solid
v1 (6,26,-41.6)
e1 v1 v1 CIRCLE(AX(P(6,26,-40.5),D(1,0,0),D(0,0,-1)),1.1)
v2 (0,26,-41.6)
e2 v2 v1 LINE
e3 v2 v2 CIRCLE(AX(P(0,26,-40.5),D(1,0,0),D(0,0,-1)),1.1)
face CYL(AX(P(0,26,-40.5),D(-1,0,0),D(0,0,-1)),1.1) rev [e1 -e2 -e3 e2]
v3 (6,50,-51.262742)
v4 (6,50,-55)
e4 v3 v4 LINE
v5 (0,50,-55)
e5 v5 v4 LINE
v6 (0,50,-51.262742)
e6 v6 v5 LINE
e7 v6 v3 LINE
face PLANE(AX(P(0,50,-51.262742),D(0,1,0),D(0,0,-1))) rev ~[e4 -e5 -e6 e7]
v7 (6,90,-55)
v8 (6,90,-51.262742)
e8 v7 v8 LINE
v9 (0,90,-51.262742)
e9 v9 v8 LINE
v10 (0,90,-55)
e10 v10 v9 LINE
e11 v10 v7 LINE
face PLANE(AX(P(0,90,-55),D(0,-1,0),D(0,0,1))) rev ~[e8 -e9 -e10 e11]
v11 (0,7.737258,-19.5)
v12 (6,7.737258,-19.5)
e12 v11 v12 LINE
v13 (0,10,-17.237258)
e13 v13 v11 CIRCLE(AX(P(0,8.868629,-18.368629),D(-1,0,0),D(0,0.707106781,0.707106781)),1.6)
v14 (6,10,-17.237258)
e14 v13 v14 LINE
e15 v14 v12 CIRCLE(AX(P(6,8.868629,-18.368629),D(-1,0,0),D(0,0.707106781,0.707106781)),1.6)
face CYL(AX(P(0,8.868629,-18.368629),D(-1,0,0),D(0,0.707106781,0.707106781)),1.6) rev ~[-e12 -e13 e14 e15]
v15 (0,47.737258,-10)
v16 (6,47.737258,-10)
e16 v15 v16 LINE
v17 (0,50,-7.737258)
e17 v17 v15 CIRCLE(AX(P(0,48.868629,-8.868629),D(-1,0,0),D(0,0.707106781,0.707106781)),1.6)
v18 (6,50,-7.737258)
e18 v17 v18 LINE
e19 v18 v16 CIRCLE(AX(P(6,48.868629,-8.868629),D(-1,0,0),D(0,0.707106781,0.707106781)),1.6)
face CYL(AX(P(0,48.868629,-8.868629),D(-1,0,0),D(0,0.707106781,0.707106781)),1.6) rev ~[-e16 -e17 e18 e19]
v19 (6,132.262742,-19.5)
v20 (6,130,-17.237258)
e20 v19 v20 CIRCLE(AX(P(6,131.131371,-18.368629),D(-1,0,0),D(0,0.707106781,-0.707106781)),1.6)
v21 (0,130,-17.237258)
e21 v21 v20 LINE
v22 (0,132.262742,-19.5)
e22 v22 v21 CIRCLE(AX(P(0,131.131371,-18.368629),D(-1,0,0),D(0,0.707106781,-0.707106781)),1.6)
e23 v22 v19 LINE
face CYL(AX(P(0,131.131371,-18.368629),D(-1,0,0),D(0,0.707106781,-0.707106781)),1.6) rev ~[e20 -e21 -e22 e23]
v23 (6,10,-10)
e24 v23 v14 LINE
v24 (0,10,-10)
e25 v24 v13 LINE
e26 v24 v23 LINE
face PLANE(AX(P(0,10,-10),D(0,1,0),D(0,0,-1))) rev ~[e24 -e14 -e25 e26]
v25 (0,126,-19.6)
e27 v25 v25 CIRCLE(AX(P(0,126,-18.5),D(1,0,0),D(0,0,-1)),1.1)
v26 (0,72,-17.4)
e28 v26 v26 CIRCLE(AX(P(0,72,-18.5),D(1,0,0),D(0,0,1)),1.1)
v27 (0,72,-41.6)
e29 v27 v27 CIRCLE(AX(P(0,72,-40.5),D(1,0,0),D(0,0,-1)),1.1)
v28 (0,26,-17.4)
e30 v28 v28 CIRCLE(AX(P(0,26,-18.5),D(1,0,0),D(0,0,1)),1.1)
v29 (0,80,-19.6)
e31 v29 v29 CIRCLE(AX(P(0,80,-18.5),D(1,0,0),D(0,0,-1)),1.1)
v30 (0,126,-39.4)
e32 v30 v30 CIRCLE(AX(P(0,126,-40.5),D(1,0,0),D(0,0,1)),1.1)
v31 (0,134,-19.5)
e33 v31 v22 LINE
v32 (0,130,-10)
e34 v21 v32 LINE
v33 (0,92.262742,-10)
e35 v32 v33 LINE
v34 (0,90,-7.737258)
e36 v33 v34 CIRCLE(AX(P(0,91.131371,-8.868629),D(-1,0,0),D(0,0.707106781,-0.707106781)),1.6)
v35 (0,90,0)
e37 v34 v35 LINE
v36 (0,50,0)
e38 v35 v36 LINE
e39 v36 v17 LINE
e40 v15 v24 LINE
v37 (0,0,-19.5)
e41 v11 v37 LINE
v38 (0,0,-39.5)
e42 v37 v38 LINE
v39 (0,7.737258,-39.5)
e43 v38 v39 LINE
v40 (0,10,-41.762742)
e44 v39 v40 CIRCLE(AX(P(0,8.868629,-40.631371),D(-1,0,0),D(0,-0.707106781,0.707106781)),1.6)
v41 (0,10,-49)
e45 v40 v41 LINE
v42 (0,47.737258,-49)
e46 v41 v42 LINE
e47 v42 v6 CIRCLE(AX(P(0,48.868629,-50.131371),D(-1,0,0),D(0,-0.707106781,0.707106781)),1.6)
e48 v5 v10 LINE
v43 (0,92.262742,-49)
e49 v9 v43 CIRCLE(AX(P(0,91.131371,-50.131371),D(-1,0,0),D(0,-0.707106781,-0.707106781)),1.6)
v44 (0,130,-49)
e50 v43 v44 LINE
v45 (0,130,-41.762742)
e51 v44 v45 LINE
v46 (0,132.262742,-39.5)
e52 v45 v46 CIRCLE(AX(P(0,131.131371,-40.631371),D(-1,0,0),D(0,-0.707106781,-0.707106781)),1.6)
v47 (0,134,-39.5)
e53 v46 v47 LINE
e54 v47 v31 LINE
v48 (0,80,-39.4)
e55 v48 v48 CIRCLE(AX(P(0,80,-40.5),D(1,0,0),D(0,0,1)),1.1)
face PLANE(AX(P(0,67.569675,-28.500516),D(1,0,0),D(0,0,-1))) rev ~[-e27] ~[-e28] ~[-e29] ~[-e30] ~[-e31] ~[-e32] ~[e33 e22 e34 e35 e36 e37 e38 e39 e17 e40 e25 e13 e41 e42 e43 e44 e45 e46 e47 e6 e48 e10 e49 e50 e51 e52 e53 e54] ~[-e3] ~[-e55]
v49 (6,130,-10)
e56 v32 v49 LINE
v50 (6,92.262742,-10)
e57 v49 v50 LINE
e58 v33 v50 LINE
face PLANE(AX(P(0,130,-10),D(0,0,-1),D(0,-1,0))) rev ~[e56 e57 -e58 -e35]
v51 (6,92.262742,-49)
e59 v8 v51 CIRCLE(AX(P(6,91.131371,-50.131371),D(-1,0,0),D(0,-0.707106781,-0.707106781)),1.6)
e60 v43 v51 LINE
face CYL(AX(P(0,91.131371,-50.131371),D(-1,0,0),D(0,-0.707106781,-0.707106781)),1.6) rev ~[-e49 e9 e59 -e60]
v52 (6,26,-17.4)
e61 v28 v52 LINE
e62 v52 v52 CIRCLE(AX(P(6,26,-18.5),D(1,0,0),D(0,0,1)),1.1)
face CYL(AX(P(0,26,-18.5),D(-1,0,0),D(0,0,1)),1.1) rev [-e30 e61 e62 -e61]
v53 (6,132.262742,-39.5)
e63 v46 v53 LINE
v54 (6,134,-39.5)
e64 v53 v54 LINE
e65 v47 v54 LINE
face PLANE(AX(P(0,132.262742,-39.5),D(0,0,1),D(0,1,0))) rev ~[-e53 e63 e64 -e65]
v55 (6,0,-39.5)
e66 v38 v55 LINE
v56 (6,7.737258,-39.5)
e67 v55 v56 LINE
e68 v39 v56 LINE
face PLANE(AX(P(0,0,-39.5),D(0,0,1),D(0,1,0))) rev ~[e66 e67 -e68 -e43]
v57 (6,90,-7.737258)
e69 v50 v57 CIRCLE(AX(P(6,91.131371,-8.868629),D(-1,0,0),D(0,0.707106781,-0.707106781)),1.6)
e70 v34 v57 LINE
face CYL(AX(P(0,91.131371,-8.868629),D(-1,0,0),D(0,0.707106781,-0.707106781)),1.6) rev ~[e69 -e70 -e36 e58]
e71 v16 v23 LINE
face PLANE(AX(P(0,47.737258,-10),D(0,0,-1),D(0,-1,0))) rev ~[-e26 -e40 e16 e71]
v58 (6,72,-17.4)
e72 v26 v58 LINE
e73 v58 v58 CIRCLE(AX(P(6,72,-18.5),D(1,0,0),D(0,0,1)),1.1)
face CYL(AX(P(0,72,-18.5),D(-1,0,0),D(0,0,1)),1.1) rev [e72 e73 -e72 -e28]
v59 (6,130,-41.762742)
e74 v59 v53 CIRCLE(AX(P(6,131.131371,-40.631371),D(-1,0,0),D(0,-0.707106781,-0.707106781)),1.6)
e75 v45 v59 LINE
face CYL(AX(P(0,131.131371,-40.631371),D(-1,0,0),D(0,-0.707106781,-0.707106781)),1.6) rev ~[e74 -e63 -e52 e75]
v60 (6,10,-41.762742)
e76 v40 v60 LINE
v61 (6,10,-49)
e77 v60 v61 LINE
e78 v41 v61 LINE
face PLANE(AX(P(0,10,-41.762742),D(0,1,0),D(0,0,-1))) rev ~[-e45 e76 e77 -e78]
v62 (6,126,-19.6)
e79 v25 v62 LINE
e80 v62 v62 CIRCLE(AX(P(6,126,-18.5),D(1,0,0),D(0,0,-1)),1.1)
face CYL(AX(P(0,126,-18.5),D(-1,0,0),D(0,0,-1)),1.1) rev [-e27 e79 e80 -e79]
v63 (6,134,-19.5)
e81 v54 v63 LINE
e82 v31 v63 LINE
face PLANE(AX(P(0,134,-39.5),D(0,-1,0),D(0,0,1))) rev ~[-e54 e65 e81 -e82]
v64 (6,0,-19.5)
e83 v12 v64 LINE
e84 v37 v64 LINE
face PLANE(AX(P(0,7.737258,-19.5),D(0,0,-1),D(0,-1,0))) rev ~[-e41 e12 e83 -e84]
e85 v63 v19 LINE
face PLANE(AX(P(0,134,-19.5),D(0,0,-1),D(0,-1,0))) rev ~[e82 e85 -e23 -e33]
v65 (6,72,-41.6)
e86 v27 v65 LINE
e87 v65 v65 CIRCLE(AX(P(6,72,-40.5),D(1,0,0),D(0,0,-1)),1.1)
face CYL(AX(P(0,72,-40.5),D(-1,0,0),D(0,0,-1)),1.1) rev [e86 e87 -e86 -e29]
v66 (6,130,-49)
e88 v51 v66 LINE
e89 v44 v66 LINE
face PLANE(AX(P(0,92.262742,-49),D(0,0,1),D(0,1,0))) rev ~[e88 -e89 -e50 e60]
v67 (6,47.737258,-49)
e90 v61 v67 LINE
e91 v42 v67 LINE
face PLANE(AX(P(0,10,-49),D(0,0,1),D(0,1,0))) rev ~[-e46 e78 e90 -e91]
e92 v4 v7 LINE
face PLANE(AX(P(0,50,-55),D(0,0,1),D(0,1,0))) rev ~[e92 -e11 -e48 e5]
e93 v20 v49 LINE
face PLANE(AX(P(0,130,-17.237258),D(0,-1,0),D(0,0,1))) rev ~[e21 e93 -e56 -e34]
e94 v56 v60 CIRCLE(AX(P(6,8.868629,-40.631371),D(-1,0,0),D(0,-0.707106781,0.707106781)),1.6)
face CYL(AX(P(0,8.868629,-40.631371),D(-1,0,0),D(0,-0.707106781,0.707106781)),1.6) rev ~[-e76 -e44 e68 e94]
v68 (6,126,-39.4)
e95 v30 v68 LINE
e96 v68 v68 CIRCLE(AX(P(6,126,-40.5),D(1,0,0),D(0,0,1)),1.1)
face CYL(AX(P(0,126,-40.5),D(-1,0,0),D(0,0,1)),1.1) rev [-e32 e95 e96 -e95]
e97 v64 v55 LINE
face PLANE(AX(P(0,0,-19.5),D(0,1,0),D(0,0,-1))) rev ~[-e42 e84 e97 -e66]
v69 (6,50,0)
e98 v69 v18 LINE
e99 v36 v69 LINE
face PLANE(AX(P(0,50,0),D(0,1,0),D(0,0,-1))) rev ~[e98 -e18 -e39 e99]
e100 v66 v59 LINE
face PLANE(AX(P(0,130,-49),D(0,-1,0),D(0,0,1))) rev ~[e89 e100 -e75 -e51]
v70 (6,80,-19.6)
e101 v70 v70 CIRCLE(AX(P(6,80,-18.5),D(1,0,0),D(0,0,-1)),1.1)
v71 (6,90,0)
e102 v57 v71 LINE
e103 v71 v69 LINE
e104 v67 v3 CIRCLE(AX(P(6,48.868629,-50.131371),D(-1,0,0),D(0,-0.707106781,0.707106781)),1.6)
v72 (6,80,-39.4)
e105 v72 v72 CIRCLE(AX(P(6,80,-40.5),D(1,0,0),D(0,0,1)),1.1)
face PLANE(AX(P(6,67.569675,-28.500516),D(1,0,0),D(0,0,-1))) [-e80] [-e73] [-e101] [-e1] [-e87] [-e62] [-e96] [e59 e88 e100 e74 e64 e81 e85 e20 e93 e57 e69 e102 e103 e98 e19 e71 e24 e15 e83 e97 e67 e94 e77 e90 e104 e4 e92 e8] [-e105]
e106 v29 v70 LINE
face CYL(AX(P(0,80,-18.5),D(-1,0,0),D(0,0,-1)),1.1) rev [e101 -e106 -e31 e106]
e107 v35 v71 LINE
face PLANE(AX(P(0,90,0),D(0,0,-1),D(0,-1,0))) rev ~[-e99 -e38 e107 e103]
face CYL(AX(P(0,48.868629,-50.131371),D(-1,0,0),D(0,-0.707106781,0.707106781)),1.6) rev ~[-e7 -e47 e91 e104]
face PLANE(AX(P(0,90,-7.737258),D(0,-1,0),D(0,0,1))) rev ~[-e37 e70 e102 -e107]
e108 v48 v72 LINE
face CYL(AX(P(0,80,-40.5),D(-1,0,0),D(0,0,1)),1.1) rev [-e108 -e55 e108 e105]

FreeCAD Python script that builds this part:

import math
import FreeCAD as App
import Part
import Sketcher
from FreeCAD import Vector

doc = App.newDocument("Part")
body = doc.addObject("PartDesign::Body", "Body")

# Sketch on YZ plane
sketch1 = body.newObject("Sketcher::SketchObject", "Sketch")
sketch1.AttachmentSupport = (doc.getObject("YZ_Plane"), [""])
sketch1.MapMode = "FlatFace"
sketch1.addGeometry(Part.LineSegment(Vector(7.737258, -19.5, 0), Vector(0, -19.5, 0)), False)
sketch1.addGeometry(Part.LineSegment(Vector(0, -19.5, 0), Vector(0, -39.5, 0)), False)
sketch1.addGeometry(Part.LineSegment(Vector(0, -39.5, 0), Vector(7.737258, -39.5, 0)), False)
sketch1.addGeometry(Part.ArcOfCircle(Part.Circle(Vector(8.868629, -40.631371, 0), Vector(0, 0, 1), 1.6), math.radians(-45), math.radians(135)), False)
sketch1.addGeometry(Part.LineSegment(Vector(10, -41.762742, 0), Vector(10, -49, 0)), False)
sketch1.addGeometry(Part.LineSegment(Vector(10, -49, 0), Vector(47.737258, -49, 0)), False)
sketch1.addGeometry(Part.ArcOfCircle(Part.Circle(Vector(48.868629, -50.131371, 0), Vector(0, 0, 1), 1.6), math.radians(-45), math.radians(135)), False)
sketch1.addGeometry(Part.LineSegment(Vector(50, -51.262742, 0), Vector(50, -55, 0)), False)
sketch1.addGeometry(Part.LineSegment(Vector(50, -55, 0), Vector(90, -55, 0)), False)
sketch1.addGeometry(Part.LineSegment(Vector(90, -55, 0), Vector(90, -51.262742, 0)), False)
sketch1.addGeometry(Part.ArcOfCircle(Part.Circle(Vector(91.131371, -50.131371, 0), Vector(0, 0, 1), 1.6), math.radians(45), math.radians(225)), False)
sketch1.addGeometry(Part.LineSegment(Vector(92.262742, -49, 0), Vector(130, -49, 0)), False)
sketch1.addGeometry(Part.LineSegment(Vector(130, -49, 0), Vector(130, -41.762742, 0)), False)
sketch1.addGeometry(Part.ArcOfCircle(Part.Circle(Vector(131.131371, -40.631371, 0), Vector(0, 0, 1), 1.6), math.radians(45), math.radians(225)), False)
sketch1.addGeometry(Part.LineSegment(Vector(132.262742, -39.5, 0), Vector(134, -39.5, 0)), False)
sketch1.addGeometry(Part.LineSegment(Vector(134, -39.5, 0), Vector(134, -19.5, 0)), False)
sketch1.addGeometry(Part.LineSegment(Vector(134, -19.5, 0), Vector(132.262742, -19.5, 0)), False)
sketch1.addGeometry(Part.ArcOfCircle(Part.Circle(Vector(131.131371, -18.368629, 0), Vector(0, 0, 1), 1.6), math.radians(135), math.radians(315)), False)
sketch1.addGeometry(Part.LineSegment(Vector(130, -17.237258, 0), Vector(130, -10, 0)), False)
sketch1.addGeometry(Part.LineSegment(Vector(130, -10, 0), Vector(92.262742, -10, 0)), False)
sketch1.addGeometry(Part.ArcOfCircle(Part.Circle(Vector(91.131371, -8.868629, 0), Vector(0, 0, 1), 1.6), math.radians(135), math.radians(315)), False)
sketch1.addGeometry(Part.LineSegment(Vector(90, -7.737258, 0), Vector(90, 0, 0)), False)
sketch1.addGeometry(Part.LineSegment(Vector(90, 0, 0), Vector(50, 0, 0)), False)
sketch1.addGeometry(Part.LineSegment(Vector(50, 0, 0), Vector(50, -7.737258, 0)), False)
sketch1.addGeometry(Part.ArcOfCircle(Part.Circle(Vector(48.868629, -8.868629, 0), Vector(0, 0, 1), 1.6), math.radians(-135), math.radians(45)), False)
sketch1.addGeometry(Part.LineSegment(Vector(47.737258, -10, 0), Vector(10, -10, 0)), False)
sketch1.addGeometry(Part.LineSegment(Vector(10, -10, 0), Vector(10, -17.237258, 0)), False)
sketch1.addGeometry(Part.ArcOfCircle(Part.Circle(Vector(8.868629, -18.368629, 0), Vector(0, 0, 1), 1.6), math.radians(-135), math.radians(45)), False)
sketch1.addGeometry(Part.Circle(Vector(26, -18.5, 0), Vector(0, 0, 1), 1.1), False)
sketch1.addGeometry(Part.Circle(Vector(72, -18.5, 0), Vector(0, 0, 1), 1.1), False)
sketch1.addGeometry(Part.Circle(Vector(26, -40.5, 0), Vector(0, 0, 1), 1.1), False)
sketch1.addGeometry(Part.Circle(Vector(72, -40.5, 0), Vector(0, 0, 1), 1.1), False)
sketch1.addGeometry(Part.Circle(Vector(80, -18.5, 0), Vector(0, 0, 1), 1.1), False)
sketch1.addGeometry(Part.Circle(Vector(126, -18.5, 0), Vector(0, 0, 1), 1.1), False)
sketch1.addGeometry(Part.Circle(Vector(80, -40.5, 0), Vector(0, 0, 1), 1.1), False)
sketch1.addGeometry(Part.Circle(Vector(126, -40.5, 0), Vector(0, 0, 1), 1.1), False)
sketch1.addConstraint(Sketcher.Constraint("Coincident", 0, 2, 1, 1))
sketch1.addConstraint(Sketcher.Constraint("Coincident", 1, 2, 2, 1))
sketch1.addConstraint(Sketcher.Constraint("Coincident", 2, 2, 3, 2))
sketch1.addConstraint(Sketcher.Constraint("Coincident", 3, 1, 4, 1))
sketch1.addConstraint(Sketcher.Constraint("Coincident", 4, 2, 5, 1))
sketch1.addConstraint(Sketcher.Constraint("Coincident", 5, 2, 6, 2))
sketch1.addConstraint(Sketcher.Constraint("Coincident", 6, 1, 7, 1))
sketch1.addConstraint(Sketcher.Constraint("Coincident", 7, 2, 8, 1))
sketch1.addConstraint(Sketcher.Constraint("Coincident", 8, 2, 9, 1))
sketch1.addConstraint(Sketcher.Constraint("Coincident", 9, 2, 10, 2))
sketch1.addConstraint(Sketcher.Constraint("Coincident", 10, 1, 11, 1))
sketch1.addConstraint(Sketcher.Constraint("Coincident", 11, 2, 12, 1))
sketch1.addConstraint(Sketcher.Constraint("Coincident", 12, 2, 13, 2))
sketch1.addConstraint(Sketcher.Constraint("Coincident", 13, 1, 14, 1))
sketch1.addConstraint(Sketcher.Constraint("Coincident", 14, 2, 15, 1))
sketch1.addConstraint(Sketcher.Constraint("Coincident", 15, 2, 16, 1))
sketch1.addConstraint(Sketcher.Constraint("Coincident", 16, 2, 17, 2))
sketch1.addConstraint(Sketcher.Constraint("Coincident", 17, 1, 18, 1))
sketch1.addConstraint(Sketcher.Constraint("Coincident", 18, 2, 19, 1))
sketch1.addConstraint(Sketcher.Constraint("Coincident", 19, 2, 20, 2))
sketch1.addConstraint(Sketcher.Constraint("Coincident", 20, 1, 21, 1))
sketch1.addConstraint(Sketcher.Constraint("Coincident", 21, 2, 22, 1))
sketch1.addConstraint(Sketcher.Constraint("Coincident", 22, 2, 23, 1))
sketch1.addConstraint(Sketcher.Constraint("Coincident", 23, 2, 24, 2))
sketch1.addConstraint(Sketcher.Constraint("Coincident", 24, 1, 25, 1))
sketch1.addConstraint(Sketcher.Constraint("Coincident", 25, 2, 26, 1))
sketch1.addConstraint(Sketcher.Constraint("Coincident", 26, 2, 27, 2))
sketch1.addConstraint(Sketcher.Constraint("Coincident", 27, 1, 0, 1))
sketch1.addConstraint(Sketcher.Constraint("Horizontal", 0))
sketch1.addConstraint(Sketcher.Constraint("Vertical", 1))
sketch1.addConstraint(Sketcher.Constraint("Horizontal", 2))
sketch1.addConstraint(Sketcher.Constraint("Vertical", 4))
sketch1.addConstraint(Sketcher.Constraint("Horizontal", 5))
sketch1.addConstraint(Sketcher.Constraint("Vertical", 7))
sketch1.addConstraint(Sketcher.Constraint("Horizontal", 8))
sketch1.addConstraint(Sketcher.Constraint("Vertical", 9))
sketch1.addConstraint(Sketcher.Constraint("Horizontal", 11))
sketch1.addConstraint(Sketcher.Constraint("Vertical", 12))
sketch1.addConstraint(Sketcher.Constraint("Horizontal", 14))
sketch1.addConstraint(Sketcher.Constraint("Vertical", 15))
sketch1.addConstraint(Sketcher.Constraint("Horizontal", 16))
sketch1.addConstraint(Sketcher.Constraint("Vertical", 18))
sketch1.addConstraint(Sketcher.Constraint("Horizontal", 19))
sketch1.addConstraint(Sketcher.Constraint("Vertical", 21))
sketch1.addConstraint(Sketcher.Constraint("Horizontal", 22))
sketch1.addConstraint(Sketcher.Constraint("Vertical", 23))
sketch1.addConstraint(Sketcher.Constraint("Horizontal", 25))
sketch1.addConstraint(Sketcher.Constraint("Vertical", 26))
sketch1.addConstraint(Sketcher.Constraint("Equal", 3, 6))
sketch1.addConstraint(Sketcher.Constraint("Equal", 6, 10))
sketch1.addConstraint(Sketcher.Constraint("Equal", 10, 13))
sketch1.addConstraint(Sketcher.Constraint("Equal", 13, 17))
sketch1.addConstraint(Sketcher.Constraint("Equal", 17, 20))
sketch1.addConstraint(Sketcher.Constraint("Equal", 20, 24))
sketch1.addConstraint(Sketcher.Constraint("Equal", 24, 27))
sketch1.addConstraint(Sketcher.Constraint("Equal", 28, 29))
sketch1.addConstraint(Sketcher.Constraint("Equal", 29, 30))
sketch1.addConstraint(Sketcher.Constraint("Equal", 30, 31))
sketch1.addConstraint(Sketcher.Constraint("Equal", 31, 32))
sketch1.addConstraint(Sketcher.Constraint("Equal", 32, 33))
sketch1.addConstraint(Sketcher.Constraint("Equal", 33, 34))
sketch1.addConstraint(Sketcher.Constraint("Equal", 34, 35))
sketch1.addConstraint(Sketcher.Constraint("PointOnObject", 0, 2, -2))
sketch1.addConstraint(Sketcher.Constraint("PointOnObject", 21, 2, -1))
sketch1.addConstraint(Sketcher.Constraint("Horizontal", 6, 3, 10, 3))
sketch1.addConstraint(Sketcher.Constraint("Horizontal", 3, 3, 13, 3))
sketch1.addConstraint(Sketcher.Constraint("Horizontal", 20, 3, 24, 3))
sketch1.addConstraint(Sketcher.Constraint("Horizontal", 17, 3, 27, 3))
sketch1.addConstraint(Sketcher.Constraint("Horizontal", 28, 3, 29, 3))
sketch1.addConstraint(Sketcher.Constraint("Horizontal", 30, 3, 31, 3))
sketch1.addConstraint(Sketcher.Constraint("Horizontal", 29, 3, 32, 3))
sketch1.addConstraint(Sketcher.Constraint("Horizontal", 32, 3, 33, 3))
sketch1.addConstraint(Sketcher.Constraint("Horizontal", 31, 3, 34, 3))
sketch1.addConstraint(Sketcher.Constraint("Horizontal", 34, 3, 35, 3))
sketch1.addConstraint(Sketcher.Constraint("Horizontal", 6, 1, 9, 2))
sketch1.addConstraint(Sketcher.Constraint("Horizontal", 5, 2, 10, 1))
sketch1.addConstraint(Sketcher.Constraint("Horizontal", 3, 1, 12, 2))
sketch1.addConstraint(Sketcher.Constraint("Horizontal", 2, 2, 13, 1))
sketch1.addConstraint(Sketcher.Constraint("Horizontal", 0, 2, 15, 2))
sketch1.addConstraint(Sketcher.Constraint("Horizontal", 20, 1, 23, 2))
sketch1.addConstraint(Sketcher.Constraint("Horizontal", 19, 2, 24, 1))
sketch1.addConstraint(Sketcher.Constraint("Horizontal", 17, 1, 26, 2))
sketch1.addConstraint(Sketcher.Constraint("Vertical", 13, 3, 17, 3))
sketch1.addConstraint(Sketcher.Constraint("Vertical", 10, 3, 20, 3))
sketch1.addConstraint(Sketcher.Constraint("Vertical", 6, 3, 24, 3))
sketch1.addConstraint(Sketcher.Constraint("Vertical", 3, 3, 27, 3))
sketch1.addConstraint(Sketcher.Constraint("Vertical", 28, 3, 30, 3))
sketch1.addConstraint(Sketcher.Constraint("Vertical", 29, 3, 31, 3))
sketch1.addConstraint(Sketcher.Constraint("Vertical", 32, 3, 34, 3))
sketch1.addConstraint(Sketcher.Constraint("Vertical", 33, 3, 35, 3))
sketch1.addConstraint(Sketcher.Constraint("Vertical", 13, 1, 16, 2))
sketch1.addConstraint(Sketcher.Constraint("Vertical", 12, 2, 17, 1))
sketch1.addConstraint(Sketcher.Constraint("Vertical", 10, 1, 19, 2))
sketch1.addConstraint(Sketcher.Constraint("Vertical", 9, 2, 20, 1))
sketch1.addConstraint(Sketcher.Constraint("Equal", 5, 11))
sketch1.addConstraint(Sketcher.Constraint("Equal", 12, 18))
sketch1.addConstraint(Sketcher.Constraint("Equal", 2, 21))
sketch1.addConstraint(Sketcher.Constraint("Diameter", 28, 2.2))
sketch1.addConstraint(Sketcher.Constraint("Radius", 3, 1.6))
sketch1.addConstraint(Sketcher.Constraint("DistanceX", 8, 1, 8, 2, 40.0))
sketch1.addConstraint(Sketcher.Constraint("DistanceY", 1, 2, 1, 1, 20.0))
sketch1.addConstraint(Sketcher.Constraint("DistanceX", -1, 1, 28, 3, 26.0))
sketch1.addConstraint(Sketcher.Constraint("DistanceX", -1, 1, 29, 3, 72.0))
sketch1.addConstraint(Sketcher.Constraint("DistanceX", -1, 1, 32, 3, 80.0))
sketch1.addConstraint(Sketcher.Constraint("DistanceX", -1, 1, 33, 3, 126.0))
sketch1.addConstraint(Sketcher.Constraint("DistanceX", -1, 1, 3, 1, 10.0))
sketch1.addConstraint(Sketcher.Constraint("DistanceY", 4, 2, -1, 1, 49.0))
sketch1.addConstraint(Sketcher.Constraint("DistanceX", -1, 1, 6, 1, 50.0))
sketch1.addConstraint(Sketcher.Constraint("DistanceY", 7, 2, -1, 1, 55.0))
sketch1.addConstraint(Sketcher.Constraint("DistanceX", -1, 1, 14, 2, 134.0))
sketch1.addConstraint(Sketcher.Constraint("DistanceY", 18, 2, -1, 1, 10.0))
sketch1.addConstraint(Sketcher.Constraint("DistanceX", 3, 3, 6, 3, 40.0))
sketch1.addConstraint(Sketcher.Constraint("DistanceY", 30, 3, 28, 3, 22.0))
sketch1.addConstraint(Sketcher.Constraint("DistanceY", 0, 2, 28, 3, 1.0))
sketch1.addConstraint(Sketcher.Constraint("DistanceY", 6, 3, 3, 3, 9.5))
sketch1.addConstraint(Sketcher.Constraint("DistanceX", -1, 1, 3, 3, 8.868629))
pad1 = body.newObject("PartDesign::Pad", "Pad")
pad1.Profile = sketch1
pad1.Length = 6

doc.recompute()
